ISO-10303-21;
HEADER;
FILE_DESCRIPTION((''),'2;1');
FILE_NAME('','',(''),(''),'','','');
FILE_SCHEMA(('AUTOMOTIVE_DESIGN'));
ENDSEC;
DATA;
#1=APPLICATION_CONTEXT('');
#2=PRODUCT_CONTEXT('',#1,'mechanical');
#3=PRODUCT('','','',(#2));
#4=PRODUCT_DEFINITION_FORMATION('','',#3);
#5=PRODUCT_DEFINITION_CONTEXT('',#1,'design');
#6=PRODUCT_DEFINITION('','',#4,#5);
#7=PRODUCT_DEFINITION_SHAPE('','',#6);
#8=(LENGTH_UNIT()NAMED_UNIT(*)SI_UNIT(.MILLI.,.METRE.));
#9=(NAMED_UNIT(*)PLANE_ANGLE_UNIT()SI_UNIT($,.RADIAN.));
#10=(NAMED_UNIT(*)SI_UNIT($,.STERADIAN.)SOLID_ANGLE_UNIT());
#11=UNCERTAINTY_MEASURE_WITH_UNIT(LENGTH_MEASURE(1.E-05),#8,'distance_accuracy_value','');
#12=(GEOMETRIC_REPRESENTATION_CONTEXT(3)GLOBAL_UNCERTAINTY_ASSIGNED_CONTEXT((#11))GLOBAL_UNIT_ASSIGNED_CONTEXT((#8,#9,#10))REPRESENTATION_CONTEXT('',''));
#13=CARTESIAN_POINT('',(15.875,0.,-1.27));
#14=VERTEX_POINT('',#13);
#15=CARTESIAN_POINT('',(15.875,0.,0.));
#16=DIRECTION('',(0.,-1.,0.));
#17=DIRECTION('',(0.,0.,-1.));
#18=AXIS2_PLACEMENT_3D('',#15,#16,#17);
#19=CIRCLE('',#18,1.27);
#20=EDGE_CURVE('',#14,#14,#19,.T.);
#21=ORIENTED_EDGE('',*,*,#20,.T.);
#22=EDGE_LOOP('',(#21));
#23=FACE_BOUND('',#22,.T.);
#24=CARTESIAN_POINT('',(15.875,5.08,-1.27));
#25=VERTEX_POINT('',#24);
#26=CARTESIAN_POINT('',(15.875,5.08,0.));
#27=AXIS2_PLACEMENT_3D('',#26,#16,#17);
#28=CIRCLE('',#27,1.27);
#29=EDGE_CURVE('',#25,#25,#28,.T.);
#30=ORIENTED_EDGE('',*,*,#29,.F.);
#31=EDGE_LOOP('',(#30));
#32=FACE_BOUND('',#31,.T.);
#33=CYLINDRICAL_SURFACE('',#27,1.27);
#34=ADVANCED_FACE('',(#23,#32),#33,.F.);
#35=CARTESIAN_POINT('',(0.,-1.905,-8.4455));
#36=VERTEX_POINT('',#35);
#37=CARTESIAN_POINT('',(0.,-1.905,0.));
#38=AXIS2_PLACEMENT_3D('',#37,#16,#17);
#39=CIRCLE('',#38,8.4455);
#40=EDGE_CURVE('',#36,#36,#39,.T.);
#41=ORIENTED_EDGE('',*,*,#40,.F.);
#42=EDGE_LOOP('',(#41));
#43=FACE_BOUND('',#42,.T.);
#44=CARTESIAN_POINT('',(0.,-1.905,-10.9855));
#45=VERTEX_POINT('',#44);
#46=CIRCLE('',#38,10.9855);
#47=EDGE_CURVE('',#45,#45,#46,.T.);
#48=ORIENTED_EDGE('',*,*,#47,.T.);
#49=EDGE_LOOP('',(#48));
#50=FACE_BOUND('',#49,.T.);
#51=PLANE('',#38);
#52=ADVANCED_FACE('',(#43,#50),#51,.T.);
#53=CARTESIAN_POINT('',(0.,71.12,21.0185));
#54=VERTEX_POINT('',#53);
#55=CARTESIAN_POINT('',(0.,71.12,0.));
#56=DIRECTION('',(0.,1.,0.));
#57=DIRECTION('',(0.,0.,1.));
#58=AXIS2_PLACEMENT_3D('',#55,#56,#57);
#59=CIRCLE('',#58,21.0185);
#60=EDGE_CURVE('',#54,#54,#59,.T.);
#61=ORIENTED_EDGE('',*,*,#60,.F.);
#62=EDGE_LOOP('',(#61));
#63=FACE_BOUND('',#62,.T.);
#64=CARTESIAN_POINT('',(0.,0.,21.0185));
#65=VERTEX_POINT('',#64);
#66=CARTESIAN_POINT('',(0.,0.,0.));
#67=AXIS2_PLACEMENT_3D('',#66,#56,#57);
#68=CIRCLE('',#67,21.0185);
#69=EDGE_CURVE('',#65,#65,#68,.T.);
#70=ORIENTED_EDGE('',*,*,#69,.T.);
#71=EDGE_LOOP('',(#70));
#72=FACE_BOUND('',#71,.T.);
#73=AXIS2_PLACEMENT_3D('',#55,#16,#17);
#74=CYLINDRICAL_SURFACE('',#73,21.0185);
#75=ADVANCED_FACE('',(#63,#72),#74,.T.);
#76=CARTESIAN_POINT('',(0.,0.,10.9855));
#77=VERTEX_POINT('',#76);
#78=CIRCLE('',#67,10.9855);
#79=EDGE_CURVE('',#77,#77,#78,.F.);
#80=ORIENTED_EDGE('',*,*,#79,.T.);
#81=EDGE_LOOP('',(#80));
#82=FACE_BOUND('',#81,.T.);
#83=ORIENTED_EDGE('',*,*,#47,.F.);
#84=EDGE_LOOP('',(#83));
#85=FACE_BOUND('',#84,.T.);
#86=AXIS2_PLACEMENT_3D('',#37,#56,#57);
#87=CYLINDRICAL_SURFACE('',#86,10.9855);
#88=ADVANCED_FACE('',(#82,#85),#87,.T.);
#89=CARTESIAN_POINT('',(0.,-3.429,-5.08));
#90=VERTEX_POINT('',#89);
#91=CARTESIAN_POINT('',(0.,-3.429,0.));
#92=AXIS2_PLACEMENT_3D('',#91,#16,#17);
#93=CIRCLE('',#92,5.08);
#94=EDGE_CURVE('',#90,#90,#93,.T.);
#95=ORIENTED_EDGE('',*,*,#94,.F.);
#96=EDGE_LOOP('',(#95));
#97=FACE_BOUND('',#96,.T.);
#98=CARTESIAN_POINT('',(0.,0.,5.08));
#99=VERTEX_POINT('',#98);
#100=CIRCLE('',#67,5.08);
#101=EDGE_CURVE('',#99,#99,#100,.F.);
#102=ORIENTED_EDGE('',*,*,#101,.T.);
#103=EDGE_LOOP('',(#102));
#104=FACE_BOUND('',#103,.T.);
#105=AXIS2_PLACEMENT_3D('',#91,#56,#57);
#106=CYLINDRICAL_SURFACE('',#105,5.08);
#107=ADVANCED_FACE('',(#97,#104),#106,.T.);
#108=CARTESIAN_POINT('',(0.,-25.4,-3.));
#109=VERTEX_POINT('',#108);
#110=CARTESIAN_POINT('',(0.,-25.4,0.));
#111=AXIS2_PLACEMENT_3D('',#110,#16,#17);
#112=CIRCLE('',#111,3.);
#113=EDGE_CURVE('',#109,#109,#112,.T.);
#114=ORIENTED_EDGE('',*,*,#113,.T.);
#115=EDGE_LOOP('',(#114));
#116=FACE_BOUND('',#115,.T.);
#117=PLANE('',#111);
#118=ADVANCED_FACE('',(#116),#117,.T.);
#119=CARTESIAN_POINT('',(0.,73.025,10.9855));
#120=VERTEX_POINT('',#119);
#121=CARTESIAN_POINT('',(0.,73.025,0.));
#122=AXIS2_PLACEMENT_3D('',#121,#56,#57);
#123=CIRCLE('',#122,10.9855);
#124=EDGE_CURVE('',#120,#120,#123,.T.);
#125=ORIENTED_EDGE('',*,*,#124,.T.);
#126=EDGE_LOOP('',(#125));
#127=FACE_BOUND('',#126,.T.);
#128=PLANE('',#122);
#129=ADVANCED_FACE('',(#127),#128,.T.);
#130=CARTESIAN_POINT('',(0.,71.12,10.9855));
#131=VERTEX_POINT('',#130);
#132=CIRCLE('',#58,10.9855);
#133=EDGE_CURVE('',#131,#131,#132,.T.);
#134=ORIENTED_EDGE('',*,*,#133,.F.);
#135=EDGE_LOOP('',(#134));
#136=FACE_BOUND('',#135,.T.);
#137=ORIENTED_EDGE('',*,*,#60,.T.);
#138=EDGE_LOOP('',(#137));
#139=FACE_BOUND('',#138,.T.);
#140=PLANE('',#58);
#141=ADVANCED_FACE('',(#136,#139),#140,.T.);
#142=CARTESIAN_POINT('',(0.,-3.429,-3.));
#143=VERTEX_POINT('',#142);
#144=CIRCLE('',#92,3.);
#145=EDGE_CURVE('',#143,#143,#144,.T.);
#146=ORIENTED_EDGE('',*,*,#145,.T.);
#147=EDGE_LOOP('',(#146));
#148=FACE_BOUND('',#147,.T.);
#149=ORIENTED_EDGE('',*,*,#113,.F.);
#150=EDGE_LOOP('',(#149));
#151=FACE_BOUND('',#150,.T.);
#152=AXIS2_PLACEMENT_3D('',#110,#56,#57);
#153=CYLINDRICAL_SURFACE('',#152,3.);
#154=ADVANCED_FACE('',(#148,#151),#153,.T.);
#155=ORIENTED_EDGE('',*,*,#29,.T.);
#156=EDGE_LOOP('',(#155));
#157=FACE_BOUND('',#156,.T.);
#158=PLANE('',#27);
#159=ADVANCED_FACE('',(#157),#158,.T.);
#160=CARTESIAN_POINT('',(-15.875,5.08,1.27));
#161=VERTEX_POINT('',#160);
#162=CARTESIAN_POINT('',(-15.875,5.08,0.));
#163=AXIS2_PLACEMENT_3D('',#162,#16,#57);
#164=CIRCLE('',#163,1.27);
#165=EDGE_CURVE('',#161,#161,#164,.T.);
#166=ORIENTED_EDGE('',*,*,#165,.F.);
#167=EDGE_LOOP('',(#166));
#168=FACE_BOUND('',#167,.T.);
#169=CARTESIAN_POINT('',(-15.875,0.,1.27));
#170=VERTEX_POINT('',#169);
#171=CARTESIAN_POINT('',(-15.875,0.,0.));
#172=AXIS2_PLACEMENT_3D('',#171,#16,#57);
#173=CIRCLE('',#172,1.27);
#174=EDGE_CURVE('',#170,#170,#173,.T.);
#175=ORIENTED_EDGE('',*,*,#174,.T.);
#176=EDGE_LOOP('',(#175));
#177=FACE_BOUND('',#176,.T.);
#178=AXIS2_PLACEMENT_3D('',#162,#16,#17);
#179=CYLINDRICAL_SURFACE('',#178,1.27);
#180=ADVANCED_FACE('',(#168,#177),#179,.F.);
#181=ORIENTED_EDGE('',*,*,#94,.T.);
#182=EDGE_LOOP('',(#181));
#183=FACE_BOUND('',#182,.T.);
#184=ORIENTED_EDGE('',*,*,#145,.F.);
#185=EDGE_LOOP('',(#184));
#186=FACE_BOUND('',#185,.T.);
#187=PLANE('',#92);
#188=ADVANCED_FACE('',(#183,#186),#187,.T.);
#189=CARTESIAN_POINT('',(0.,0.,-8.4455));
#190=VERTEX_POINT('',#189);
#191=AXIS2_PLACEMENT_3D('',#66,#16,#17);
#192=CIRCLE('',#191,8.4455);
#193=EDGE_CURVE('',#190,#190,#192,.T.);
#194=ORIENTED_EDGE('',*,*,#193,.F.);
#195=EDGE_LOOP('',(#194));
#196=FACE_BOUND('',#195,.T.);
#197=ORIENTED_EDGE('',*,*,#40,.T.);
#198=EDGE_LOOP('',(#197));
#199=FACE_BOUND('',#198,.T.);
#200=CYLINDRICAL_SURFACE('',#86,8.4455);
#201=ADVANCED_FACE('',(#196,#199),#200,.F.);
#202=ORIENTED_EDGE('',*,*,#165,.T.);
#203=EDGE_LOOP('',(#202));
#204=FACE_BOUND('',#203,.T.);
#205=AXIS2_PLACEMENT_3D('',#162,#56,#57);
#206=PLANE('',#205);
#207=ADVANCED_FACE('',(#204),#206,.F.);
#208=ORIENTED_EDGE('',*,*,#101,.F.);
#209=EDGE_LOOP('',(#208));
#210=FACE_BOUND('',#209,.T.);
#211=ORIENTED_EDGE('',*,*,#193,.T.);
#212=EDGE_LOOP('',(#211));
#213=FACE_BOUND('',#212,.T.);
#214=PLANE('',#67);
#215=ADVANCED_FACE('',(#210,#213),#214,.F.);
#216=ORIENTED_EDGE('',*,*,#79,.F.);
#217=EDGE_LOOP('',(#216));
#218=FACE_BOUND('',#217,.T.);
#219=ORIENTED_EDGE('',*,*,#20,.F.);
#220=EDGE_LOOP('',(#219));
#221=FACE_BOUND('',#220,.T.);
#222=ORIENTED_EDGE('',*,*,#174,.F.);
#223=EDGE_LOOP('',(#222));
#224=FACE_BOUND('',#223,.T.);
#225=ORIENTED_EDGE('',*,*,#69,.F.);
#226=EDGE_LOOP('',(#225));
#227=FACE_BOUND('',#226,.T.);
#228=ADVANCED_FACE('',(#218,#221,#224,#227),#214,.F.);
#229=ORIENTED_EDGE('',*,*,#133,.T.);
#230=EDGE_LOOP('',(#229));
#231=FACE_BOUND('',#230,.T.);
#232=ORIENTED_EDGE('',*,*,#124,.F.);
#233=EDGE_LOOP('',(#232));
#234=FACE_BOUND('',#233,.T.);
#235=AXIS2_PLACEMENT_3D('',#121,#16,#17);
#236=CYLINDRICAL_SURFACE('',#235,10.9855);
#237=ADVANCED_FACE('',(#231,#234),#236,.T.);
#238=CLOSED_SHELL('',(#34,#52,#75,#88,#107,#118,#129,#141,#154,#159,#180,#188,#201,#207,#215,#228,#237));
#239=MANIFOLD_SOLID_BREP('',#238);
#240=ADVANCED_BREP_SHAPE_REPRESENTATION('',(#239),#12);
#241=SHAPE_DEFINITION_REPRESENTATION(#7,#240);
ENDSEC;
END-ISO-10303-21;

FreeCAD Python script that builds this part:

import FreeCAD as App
import Part
import Sketcher
Q = App.Units.Quantity

doc = App.newDocument("Part")
body = doc.addObject("PartDesign::Body", "Body")

# Sketch on XZ plane
sketch1 = body.newObject("Sketcher::SketchObject", "Sketch")
sketch1.AttachmentSupport = (doc.getObject("XZ_Plane"), [""])
sketch1.MapMode = "FlatFace"
sketch1.addGeometry(Part.Circle(App.Vector(0, 0, 0), App.Vector(0, 0, 1), 21), False)
sketch1.addConstraint([
    Sketcher.Constraint("Coincident", 0, 3, -1, 1),
    Sketcher.Constraint("Diameter", 0, Q("1.655 in")),
])
pad1 = body.newObject("PartDesign::Pad", "Pad")
pad1.Profile = sketch1
pad1.Length = Q("2.8 in")
pad1.Reversed = True

# Sketch on XZ plane
sketch2 = body.newObject("Sketcher::SketchObject", "Sketch001")
sketch2.AttachmentSupport = (doc.getObject("XZ_Plane"), [""])
sketch2.MapMode = "FlatFace"
sketch2.AttachmentOffset = App.Placement(App.Vector(0, 0, -2.8 * 25.4), App.Rotation())
sketch2.addGeometry(Part.Circle(App.Vector(0, 0, 0), App.Vector(0, 0, 1), 11), False)
sketch2.addConstraint([
    Sketcher.Constraint("Coincident", 0, 3, -1, 1),
    Sketcher.Constraint("Diameter", 0, Q("0.865 in")),
])
pad2 = body.newObject("PartDesign::Pad", "Pad001")
pad2.Profile = sketch2
pad2.Length = Q("0.075 in")
pad2.Reversed = True

# Sketch on XZ plane
sketch3 = body.newObject("Sketcher::SketchObject", "Sketch002")
sketch3.AttachmentSupport = (doc.getObject("XZ_Plane"), [""])
sketch3.MapMode = "FlatFace"
sketch3.addGeometry([
    Part.Circle(App.Vector(0, 0, 0), App.Vector(0, 0, 1), 11),
    Part.Circle(App.Vector(0, 0, 0), App.Vector(0, 0, 1), 8),
], False)
sketch3.addConstraint([
    Sketcher.Constraint("Coincident", 0, 3, -1, 1),
    Sketcher.Constraint("Coincident", 1, 3, -1, 1),
    Sketcher.Constraint("Diameter", 0, Q("0.865 in")),
    Sketcher.Constraint("Diameter", 1, Q("0.665 in")),
])
pad3 = body.newObject("PartDesign::Pad", "Pad002")
pad3.Profile = sketch3
pad3.Length = Q("0.075 in")

# Sketch on XZ plane
sketch4 = body.newObject("Sketcher::SketchObject", "Sketch003")
sketch4.AttachmentSupport = (doc.getObject("XZ_Plane"), [""])
sketch4.MapMode = "FlatFace"
sketch4.addGeometry(Part.Circle(App.Vector(0, 0, 0), App.Vector(0, 0, 1), 3), False)
sketch4.addConstraint([
    Sketcher.Constraint("Coincident", 0, 3, -1, 1),
    Sketcher.Constraint("Diameter", 0, 6.0),
])
pad4 = body.newObject("PartDesign::Pad", "Pad003")
pad4.Profile = sketch4
pad4.Length = Q("1 in")

# Sketch on XZ plane
sketch5 = body.newObject("Sketcher::SketchObject", "Sketch004")
sketch5.AttachmentSupport = (doc.getObject("XZ_Plane"), [""])
sketch5.MapMode = "FlatFace"
sketch5.addGeometry(Part.Circle(App.Vector(0, 0, 0), App.Vector(0, 0, 1), 5), False)
sketch5.addConstraint([
    Sketcher.Constraint("Coincident", 0, 3, -1, 1),
    Sketcher.Constraint("Diameter", 0, Q("0.4 in")),
])
pad5 = body.newObject("PartDesign::Pad", "Pad004")
pad5.Profile = sketch5
pad5.Length = Q("0.135 in")

# Sketch on XZ plane
sketch6 = body.newObject("Sketcher::SketchObject", "Sketch005")
sketch6.AttachmentSupport = (doc.getObject("XZ_Plane"), [""])
sketch6.MapMode = "FlatFace"
sketch6.addGeometry([
    Part.Circle(App.Vector(15.9, 0, 0), App.Vector(0, 0, 1), 1.3),
    Part.Circle(App.Vector(-15.9, 0, 0), App.Vector(0, 0, 1), 1.3),
], False)
sketch6.addConstraint([
    Sketcher.Constraint("Equal", 0, 1),
    Sketcher.Constraint("Symmetric", 0, 3, 1, 3, -1, 1),
    Sketcher.Constraint("PointOnObject", 0, 3, -1),
    Sketcher.Constraint("Diameter", 0, Q("0.1 in")),
    Sketcher.Constraint("DistanceX", 1, 3, 0, 3, Q("1.25 in")),
])
pocket1 = body.newObject("PartDesign::Pocket", "Pocket")
pocket1.Profile = sketch6
pocket1.Length = Q("0.2 in")

doc.recompute()
